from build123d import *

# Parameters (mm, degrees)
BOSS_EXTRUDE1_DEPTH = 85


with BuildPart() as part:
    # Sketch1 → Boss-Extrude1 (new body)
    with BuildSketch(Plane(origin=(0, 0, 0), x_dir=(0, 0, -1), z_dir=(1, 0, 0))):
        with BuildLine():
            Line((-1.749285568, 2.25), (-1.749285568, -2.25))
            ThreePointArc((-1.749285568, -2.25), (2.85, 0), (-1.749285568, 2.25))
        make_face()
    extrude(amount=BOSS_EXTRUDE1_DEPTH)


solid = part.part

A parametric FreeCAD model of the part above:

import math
import FreeCAD as App
import Part
import Sketcher
from FreeCAD import Vector
Q = App.Units.Quantity

doc = App.newDocument("Part")
body = doc.addObject("PartDesign::Body", "Body")

# Sketch on YZ plane
sketch1 = body.newObject("Sketcher::SketchObject", "Sketch")
sketch1.AttachmentSupport = (doc.getObject("YZ_Plane"), [""])
sketch1.MapMode = "FlatFace"
sketch1.addGeometry([
    Part.LineSegment(Vector(2.2, 1.7, 0), Vector(-2.2, 1.7, 0)),
    Part.ArcOfCircle(Part.Circle(Vector(0, 0, 0), Vector(0, 0, 1), 2.9), math.radians(142), math.radians(398)),
], False)
sketch1.addConstraint([
    Sketcher.Constraint("Coincident", 0, 1, 1, 2),
    Sketcher.Constraint("Coincident", 1, 1, 0, 2),
    Sketcher.Constraint("Horizontal", 0),
    Sketcher.Constraint("Coincident", 1, 3, -1, 1),
    Sketcher.Constraint("Radius", 1, Q("2.85 mm")),
    Sketcher.Constraint("DistanceX", 0, 2, 0, 1, Q("4.5 mm")),
])
pad1 = body.newObject("PartDesign::Pad", "Pad")
pad1.Profile = sketch1
pad1.Length = 85

doc.recompute()
